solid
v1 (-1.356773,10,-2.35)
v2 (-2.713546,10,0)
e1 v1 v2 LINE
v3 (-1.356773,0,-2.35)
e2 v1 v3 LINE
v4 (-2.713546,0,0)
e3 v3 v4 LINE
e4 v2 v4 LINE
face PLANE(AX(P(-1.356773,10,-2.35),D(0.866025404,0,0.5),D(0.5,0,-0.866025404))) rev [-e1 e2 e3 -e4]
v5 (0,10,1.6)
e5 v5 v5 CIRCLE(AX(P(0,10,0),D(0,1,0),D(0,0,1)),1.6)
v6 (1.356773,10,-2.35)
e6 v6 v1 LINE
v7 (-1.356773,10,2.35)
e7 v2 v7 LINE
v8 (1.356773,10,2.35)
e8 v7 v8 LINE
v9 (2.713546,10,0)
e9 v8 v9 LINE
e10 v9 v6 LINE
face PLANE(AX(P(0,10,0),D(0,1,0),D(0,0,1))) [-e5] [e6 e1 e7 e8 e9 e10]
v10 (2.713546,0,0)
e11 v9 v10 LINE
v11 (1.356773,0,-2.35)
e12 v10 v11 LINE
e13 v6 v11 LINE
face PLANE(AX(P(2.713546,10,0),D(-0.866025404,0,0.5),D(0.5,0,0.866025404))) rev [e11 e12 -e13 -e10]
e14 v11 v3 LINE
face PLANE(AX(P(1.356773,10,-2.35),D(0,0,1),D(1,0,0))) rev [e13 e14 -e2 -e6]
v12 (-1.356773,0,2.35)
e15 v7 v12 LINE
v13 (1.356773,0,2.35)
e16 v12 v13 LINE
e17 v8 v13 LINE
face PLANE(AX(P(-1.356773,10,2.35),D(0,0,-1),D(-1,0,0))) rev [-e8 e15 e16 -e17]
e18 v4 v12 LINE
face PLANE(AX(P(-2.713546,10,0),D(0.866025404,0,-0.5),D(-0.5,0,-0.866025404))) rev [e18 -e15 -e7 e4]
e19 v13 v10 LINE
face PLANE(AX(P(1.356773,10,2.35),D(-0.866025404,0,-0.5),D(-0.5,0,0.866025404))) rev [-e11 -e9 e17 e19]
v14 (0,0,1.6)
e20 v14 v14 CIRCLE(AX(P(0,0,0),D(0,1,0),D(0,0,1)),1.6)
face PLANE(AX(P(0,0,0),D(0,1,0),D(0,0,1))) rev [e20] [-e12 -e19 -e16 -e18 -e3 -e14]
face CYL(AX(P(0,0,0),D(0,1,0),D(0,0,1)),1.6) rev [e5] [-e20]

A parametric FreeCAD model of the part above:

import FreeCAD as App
import Part
import Sketcher

V = App.Vector
Q = App.Units.Quantity


def add_polygon(sketch, points):
    """Adds a closed chain of lines whose ends are joined by coincident constraints."""
    first, n = sketch.GeometryCount, len(points)
    for a, b in zip(points, points[1:] + points[:1]):
        sketch.addGeometry(Part.LineSegment(App.Vector(*a, 0), App.Vector(*b, 0)), False)
    for i in range(n):
        sketch.addConstraint(Sketcher.Constraint("Coincident", first + i, 2, first + (i + 1) % n, 1))

doc = App.newDocument("Part")
body = doc.addObject("PartDesign::Body", "Body")

sketch1 = body.newObject("Sketcher::SketchObject", "Sketch")
sketch1.AttachmentSupport = (doc.getObject("XZ_Plane"), [""])
sketch1.MapMode = "FlatFace"
add_polygon(sketch1, [(2.713546, 0), (1.356773, -2.35), (-1.356773, -2.35), (-2.713546, 0), (-1.356773, 2.35), (1.356773, 2.35)])
sketch1.addConstraint([
    Sketcher.Constraint("Horizontal", 1),
    Sketcher.Constraint("Horizontal", 4),
    Sketcher.Constraint("Symmetric", 0, 2, 3, 2, -1, 1),
    Sketcher.Constraint("Symmetric", 2, 2, 5, 2, -1, 1),
    Sketcher.Constraint("PointOnObject", 2, 2, -1),
    Sketcher.Constraint("Parallel", 2, 5),
    Sketcher.Constraint("Vertical", 1, 2, 3, 2),
    Sketcher.Constraint("Angle", 0, Q("-120 deg")),
    Sketcher.Constraint("DistanceY", 1, 2, 3, 2, Q("4.7 mm")),
    Sketcher.Constraint("DistanceX", 1, 2, 1, 1, Q("2.713546 mm")),
])
pad1 = body.newObject("PartDesign::Pad", "Pad")
pad1.Profile = sketch1
pad1.Length = 10
pad1.Reversed = True

sketch2 = body.newObject("Sketcher::SketchObject", "Sketch001")
sketch2.AttachmentSupport = (doc.getObject("XZ_Plane"), [""])
sketch2.MapMode = "FlatFace"
sketch2.AttachmentOffset = App.Placement(V(0, 0, -10), App.Rotation())
sketch2.addGeometry(Part.Circle(V(0, 0, 0), V(0, 0, 1), 1.6), False)
sketch2.addConstraint([
    Sketcher.Constraint("Coincident", 0, 3, -1, 1),
    Sketcher.Constraint("Diameter", 0, Q("3.2 mm")),
])
pocket1 = body.newObject("PartDesign::Pocket", "Pocket")
pocket1.Profile = sketch2
pocket1.Type = "ThroughAll"
pocket1.Reversed = True

doc.recompute()
